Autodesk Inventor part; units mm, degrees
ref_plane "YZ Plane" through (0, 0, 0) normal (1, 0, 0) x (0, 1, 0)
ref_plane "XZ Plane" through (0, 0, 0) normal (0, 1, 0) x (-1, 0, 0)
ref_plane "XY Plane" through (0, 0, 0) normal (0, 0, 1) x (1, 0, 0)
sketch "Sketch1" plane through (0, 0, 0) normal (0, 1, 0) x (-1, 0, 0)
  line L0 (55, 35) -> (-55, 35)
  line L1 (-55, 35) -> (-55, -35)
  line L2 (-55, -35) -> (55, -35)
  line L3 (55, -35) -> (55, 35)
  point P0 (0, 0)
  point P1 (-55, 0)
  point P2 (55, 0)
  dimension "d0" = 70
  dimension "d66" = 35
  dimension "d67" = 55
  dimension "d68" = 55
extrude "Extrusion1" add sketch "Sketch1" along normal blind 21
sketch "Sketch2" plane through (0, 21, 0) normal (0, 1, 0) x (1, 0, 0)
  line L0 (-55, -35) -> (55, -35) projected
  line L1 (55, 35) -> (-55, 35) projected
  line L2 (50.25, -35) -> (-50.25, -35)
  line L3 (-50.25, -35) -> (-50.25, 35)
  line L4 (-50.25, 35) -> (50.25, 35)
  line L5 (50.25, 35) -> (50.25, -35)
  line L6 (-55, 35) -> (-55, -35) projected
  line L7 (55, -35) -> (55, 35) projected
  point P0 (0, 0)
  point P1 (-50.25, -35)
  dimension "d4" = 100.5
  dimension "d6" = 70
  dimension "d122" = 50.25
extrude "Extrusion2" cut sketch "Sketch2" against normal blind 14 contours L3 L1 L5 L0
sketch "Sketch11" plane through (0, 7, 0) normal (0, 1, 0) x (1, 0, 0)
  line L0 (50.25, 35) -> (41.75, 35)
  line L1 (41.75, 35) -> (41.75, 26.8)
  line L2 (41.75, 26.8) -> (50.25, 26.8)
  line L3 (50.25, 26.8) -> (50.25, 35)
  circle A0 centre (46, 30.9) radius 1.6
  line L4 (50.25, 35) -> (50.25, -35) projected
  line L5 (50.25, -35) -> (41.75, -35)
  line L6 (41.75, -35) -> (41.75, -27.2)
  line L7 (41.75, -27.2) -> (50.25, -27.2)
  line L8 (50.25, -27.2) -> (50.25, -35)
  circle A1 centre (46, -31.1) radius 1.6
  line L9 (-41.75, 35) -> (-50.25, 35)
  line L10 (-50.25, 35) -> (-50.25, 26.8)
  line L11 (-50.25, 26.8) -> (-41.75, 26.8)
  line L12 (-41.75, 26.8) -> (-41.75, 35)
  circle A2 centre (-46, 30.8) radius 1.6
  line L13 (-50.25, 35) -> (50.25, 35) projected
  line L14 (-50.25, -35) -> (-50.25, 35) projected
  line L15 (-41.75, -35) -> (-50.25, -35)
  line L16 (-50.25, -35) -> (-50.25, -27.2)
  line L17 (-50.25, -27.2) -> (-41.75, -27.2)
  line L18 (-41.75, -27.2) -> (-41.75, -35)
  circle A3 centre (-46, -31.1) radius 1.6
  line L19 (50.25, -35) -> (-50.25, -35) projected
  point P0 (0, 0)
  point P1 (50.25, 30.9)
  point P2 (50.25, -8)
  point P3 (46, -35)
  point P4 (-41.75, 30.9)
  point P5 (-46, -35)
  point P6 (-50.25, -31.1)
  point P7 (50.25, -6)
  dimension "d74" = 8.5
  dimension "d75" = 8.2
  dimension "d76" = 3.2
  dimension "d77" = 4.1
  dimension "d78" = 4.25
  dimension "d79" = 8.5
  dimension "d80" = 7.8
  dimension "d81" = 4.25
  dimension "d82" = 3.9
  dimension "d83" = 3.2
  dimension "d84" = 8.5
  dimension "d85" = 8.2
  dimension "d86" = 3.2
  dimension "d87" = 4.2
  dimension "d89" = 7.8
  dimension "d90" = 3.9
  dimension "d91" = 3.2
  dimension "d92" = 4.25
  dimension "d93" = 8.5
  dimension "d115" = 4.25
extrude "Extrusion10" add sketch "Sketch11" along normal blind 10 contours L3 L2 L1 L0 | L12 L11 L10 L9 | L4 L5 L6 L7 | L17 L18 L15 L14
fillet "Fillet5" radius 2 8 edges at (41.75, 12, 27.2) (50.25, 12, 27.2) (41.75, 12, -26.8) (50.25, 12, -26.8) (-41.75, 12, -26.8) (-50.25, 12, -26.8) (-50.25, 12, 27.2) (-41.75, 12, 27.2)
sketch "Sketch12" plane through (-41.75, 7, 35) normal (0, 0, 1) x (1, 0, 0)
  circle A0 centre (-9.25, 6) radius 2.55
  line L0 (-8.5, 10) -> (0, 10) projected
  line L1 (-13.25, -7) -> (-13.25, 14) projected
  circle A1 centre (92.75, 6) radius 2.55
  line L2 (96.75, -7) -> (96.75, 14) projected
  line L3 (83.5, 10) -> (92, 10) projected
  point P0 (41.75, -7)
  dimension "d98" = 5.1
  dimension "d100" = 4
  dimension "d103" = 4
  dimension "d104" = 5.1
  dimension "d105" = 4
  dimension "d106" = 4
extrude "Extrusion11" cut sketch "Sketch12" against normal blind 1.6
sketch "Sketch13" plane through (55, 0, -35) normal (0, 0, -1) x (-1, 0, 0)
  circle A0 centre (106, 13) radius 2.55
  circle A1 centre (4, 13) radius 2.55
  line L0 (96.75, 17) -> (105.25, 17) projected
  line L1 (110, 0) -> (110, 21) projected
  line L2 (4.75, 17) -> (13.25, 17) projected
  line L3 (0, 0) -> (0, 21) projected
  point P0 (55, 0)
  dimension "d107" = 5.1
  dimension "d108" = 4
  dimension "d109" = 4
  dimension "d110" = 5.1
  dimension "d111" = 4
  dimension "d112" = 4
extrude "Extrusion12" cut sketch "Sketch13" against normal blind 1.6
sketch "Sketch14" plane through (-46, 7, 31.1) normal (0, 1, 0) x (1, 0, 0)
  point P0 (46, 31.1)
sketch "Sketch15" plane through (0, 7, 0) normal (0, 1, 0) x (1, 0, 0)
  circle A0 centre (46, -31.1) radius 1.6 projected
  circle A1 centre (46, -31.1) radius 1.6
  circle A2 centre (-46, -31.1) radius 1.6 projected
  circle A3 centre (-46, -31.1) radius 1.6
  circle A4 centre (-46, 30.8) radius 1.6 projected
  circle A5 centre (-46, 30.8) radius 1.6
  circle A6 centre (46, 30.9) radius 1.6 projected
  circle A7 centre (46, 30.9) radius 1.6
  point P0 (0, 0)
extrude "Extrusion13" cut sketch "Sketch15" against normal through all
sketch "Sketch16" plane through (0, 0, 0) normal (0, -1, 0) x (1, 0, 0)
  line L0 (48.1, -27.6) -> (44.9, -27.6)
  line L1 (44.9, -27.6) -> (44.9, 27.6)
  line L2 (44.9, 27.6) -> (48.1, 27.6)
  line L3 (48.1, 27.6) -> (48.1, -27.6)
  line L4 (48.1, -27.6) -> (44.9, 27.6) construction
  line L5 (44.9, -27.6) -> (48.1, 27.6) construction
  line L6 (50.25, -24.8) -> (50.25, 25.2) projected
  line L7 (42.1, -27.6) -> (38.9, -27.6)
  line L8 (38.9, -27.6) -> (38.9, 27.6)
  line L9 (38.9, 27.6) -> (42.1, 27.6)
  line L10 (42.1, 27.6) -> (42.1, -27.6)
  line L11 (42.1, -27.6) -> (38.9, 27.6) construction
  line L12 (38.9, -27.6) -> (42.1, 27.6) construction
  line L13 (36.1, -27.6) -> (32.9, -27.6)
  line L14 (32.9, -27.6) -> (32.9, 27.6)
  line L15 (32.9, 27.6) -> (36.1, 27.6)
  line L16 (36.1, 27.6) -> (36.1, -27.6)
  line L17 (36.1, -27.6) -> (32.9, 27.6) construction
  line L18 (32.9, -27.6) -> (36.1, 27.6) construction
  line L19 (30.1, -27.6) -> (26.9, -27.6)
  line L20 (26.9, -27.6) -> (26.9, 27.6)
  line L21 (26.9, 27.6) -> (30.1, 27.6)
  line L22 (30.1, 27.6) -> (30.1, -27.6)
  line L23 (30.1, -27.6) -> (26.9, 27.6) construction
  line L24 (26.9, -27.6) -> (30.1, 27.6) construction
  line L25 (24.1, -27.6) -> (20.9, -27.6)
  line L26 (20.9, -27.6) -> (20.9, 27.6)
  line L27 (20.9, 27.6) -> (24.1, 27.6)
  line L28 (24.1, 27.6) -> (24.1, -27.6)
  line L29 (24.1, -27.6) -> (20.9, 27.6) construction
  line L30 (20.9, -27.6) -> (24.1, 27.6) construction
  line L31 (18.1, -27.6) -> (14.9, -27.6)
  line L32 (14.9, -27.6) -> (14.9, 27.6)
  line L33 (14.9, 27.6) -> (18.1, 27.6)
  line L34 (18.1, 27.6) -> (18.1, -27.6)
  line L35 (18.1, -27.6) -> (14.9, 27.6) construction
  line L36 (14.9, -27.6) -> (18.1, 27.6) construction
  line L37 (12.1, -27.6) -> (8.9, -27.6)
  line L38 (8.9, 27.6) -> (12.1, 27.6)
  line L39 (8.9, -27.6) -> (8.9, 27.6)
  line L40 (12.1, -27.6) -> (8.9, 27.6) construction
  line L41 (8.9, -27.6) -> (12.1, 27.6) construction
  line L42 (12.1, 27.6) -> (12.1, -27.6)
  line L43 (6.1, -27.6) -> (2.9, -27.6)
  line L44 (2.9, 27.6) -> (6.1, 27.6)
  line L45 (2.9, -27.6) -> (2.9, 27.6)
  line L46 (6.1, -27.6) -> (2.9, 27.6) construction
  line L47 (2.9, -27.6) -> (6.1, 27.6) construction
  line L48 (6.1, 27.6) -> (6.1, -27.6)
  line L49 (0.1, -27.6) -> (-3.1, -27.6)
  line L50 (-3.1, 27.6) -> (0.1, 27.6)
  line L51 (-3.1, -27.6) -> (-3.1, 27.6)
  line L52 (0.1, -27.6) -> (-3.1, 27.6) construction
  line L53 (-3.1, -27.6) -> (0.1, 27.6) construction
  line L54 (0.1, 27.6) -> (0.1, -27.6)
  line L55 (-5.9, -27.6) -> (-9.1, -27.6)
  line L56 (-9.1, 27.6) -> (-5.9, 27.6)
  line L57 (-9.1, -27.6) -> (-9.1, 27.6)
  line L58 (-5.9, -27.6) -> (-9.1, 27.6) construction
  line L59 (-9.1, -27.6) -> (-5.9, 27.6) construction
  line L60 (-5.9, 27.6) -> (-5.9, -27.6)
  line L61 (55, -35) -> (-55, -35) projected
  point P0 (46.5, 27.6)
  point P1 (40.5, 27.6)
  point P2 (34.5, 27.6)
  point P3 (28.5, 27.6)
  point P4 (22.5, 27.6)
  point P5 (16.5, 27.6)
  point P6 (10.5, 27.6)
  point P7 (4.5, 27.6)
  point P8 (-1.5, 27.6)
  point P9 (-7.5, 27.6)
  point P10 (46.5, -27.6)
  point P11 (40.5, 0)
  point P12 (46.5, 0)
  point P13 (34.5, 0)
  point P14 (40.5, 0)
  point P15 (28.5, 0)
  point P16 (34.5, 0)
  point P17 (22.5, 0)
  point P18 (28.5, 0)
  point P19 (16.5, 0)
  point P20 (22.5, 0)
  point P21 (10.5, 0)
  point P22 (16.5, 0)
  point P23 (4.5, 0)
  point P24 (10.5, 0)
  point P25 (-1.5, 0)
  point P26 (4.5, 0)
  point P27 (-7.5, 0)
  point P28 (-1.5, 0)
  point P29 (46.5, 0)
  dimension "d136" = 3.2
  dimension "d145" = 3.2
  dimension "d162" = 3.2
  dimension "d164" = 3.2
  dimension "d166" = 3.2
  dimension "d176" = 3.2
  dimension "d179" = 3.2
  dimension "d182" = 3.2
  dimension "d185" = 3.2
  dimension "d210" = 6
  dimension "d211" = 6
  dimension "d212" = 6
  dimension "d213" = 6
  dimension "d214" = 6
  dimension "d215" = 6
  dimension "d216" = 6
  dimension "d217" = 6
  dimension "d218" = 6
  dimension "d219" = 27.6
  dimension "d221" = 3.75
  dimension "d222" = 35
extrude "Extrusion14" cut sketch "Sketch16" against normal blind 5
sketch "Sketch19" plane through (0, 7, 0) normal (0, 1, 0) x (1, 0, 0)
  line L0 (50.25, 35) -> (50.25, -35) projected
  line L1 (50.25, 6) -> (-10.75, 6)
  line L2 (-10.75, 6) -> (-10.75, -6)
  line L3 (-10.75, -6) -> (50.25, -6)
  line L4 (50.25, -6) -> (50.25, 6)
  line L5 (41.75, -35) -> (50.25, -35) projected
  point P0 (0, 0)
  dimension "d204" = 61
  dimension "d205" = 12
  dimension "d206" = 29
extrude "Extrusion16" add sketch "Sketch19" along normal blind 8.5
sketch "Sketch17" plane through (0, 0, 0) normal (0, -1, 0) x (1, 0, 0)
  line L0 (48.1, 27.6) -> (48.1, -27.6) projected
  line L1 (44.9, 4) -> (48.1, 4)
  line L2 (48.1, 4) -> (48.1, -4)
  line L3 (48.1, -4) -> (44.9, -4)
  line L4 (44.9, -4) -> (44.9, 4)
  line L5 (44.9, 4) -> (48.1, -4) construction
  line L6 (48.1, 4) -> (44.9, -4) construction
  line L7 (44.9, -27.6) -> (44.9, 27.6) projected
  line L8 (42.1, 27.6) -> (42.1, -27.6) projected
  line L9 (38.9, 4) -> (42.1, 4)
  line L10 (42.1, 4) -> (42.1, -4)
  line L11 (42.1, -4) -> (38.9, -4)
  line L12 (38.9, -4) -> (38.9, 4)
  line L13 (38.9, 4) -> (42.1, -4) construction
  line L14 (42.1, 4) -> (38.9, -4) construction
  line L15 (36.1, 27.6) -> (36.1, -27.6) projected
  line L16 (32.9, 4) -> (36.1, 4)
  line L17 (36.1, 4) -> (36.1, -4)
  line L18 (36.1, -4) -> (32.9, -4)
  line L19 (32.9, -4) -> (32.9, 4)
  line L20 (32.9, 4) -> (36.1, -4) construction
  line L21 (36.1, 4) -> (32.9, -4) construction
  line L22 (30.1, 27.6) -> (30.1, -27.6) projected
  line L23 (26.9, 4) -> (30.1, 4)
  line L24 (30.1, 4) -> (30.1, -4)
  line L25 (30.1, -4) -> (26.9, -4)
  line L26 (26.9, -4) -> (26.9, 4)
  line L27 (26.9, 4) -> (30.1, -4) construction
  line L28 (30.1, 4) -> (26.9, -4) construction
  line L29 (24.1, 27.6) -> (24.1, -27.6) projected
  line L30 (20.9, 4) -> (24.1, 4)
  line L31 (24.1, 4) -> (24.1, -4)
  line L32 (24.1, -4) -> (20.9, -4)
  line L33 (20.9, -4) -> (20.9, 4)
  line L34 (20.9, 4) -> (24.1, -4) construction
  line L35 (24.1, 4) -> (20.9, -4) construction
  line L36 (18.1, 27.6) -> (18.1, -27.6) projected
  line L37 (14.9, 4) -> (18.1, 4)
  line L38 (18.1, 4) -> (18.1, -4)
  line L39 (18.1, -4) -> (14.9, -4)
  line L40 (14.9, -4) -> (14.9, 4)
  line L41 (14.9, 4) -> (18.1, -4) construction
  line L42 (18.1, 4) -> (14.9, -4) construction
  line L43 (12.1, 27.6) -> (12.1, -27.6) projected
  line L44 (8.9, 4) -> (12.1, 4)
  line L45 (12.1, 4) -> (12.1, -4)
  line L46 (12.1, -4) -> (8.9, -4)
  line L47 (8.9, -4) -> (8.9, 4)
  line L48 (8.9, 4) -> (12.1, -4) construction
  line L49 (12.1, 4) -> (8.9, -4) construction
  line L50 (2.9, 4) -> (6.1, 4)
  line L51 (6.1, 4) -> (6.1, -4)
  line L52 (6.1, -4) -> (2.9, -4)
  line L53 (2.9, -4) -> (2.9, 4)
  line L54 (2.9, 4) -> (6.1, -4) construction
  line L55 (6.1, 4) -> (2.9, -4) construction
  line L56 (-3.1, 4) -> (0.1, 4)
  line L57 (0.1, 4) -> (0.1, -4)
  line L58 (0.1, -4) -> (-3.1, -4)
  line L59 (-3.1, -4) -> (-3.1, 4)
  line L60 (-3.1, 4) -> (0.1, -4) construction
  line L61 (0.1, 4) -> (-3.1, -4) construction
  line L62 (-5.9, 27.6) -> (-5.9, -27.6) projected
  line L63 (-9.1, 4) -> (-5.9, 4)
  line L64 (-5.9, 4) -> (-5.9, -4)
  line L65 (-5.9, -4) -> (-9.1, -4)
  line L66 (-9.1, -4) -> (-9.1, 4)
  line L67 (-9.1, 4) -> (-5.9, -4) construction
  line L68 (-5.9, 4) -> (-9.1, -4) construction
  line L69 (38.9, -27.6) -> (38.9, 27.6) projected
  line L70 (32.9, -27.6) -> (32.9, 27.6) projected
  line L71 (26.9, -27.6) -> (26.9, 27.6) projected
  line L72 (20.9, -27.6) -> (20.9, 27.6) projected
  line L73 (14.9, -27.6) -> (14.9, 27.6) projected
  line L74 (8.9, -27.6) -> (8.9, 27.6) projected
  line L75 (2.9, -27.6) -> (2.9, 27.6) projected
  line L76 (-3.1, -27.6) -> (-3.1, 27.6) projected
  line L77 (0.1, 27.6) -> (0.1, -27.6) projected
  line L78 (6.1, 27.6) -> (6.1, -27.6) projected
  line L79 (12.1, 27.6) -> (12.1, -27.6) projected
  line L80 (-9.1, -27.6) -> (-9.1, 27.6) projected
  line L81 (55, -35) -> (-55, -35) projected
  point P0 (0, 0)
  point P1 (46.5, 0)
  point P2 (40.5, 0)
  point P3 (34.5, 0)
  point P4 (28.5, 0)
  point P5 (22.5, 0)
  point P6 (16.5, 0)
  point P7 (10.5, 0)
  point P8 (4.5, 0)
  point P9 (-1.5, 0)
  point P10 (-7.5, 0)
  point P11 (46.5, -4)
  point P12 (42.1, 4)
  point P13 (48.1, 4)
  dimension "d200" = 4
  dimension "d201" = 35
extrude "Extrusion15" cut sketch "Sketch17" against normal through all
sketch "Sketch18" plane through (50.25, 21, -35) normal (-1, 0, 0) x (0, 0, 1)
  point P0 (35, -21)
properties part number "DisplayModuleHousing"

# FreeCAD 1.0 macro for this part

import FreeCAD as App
import Part
import Sketcher


def edges_at(feature, points):
    """Names of the edges that pass closest to the given points."""
    edges = feature.Shape.Edges
    near = lambda p: min(range(len(edges)), key=lambda i: edges[i].distToShape(Part.Vertex(*p))[0])
    return sorted({f"Edge{near(p) + 1}" for p in points})


def add_polygon(sketch, points):
    """Adds a closed chain of lines whose ends are joined by coincident constraints."""
    first, n = sketch.GeometryCount, len(points)
    for a, b in zip(points, points[1:] + points[:1]):
        sketch.addGeometry(Part.LineSegment(App.Vector(*a, 0), App.Vector(*b, 0)), False)
    for i in range(n):
        sketch.addConstraint(Sketcher.Constraint("Coincident", first + i, 2, first + (i + 1) % n, 1))

doc = App.newDocument("Part")
body = doc.addObject("PartDesign::Body", "Body")

# Sketch on XZ plane
sketch1 = body.newObject("Sketcher::SketchObject", "Sketch")
sketch1.AttachmentSupport = (doc.getObject("XZ_Plane"), [""])
sketch1.MapMode = "FlatFace"
add_polygon(sketch1, [(-55, -35), (-55, 35), (55, 35), (55, -35)])  # lines 0-3
sketch1.addConstraint([
    Sketcher.Constraint("Vertical", 0),
    Sketcher.Constraint("Horizontal", 1),
    Sketcher.Constraint("Vertical", 2),
    Sketcher.Constraint("Horizontal", 3),
    Sketcher.Constraint("Symmetric", 0, 2, 2, 2, -1, 1),
    Sketcher.Constraint("DistanceY", 0, 1, 0, 2, 70.0),
    Sketcher.Constraint("DistanceX", 0, 2, -1, 1, 55.0),
])
pad1 = body.newObject("PartDesign::Pad", "Pad")
pad1.Profile = sketch1
pad1.Length = 21
pad1.Reversed = True

# Sketch on XZ plane
sketch2 = body.newObject("Sketcher::SketchObject", "Sketch001")
sketch2.AttachmentSupport = (doc.getObject("XZ_Plane"), [""])
sketch2.MapMode = "FlatFace"
sketch2.AttachmentOffset = App.Placement(App.Vector(0, 0, -21), App.Rotation())
add_polygon(sketch2, [(-50.25, -35), (-50.25, 35), (50.25, 35), (50.25, -35)])  # lines 0-3
sketch2.addConstraint([
    Sketcher.Constraint("Vertical", 0),
    Sketcher.Constraint("Horizontal", 1),
    Sketcher.Constraint("Vertical", 2),
    Sketcher.Constraint("Horizontal", 3),
    Sketcher.Constraint("Symmetric", 0, 2, 2, 2, -1, 1),
    Sketcher.Constraint("DistanceY", 0, 1, 0, 2, 70.0),
    Sketcher.Constraint("DistanceX", 1, 1, 1, 2, 100.5),
])
pocket1 = body.newObject("PartDesign::Pocket", "Pocket")
pocket1.Profile = sketch2
pocket1.Length = 14
pocket1.Reversed = True

# Sketch on XZ plane
sketch3 = body.newObject("Sketcher::SketchObject", "Sketch002")
sketch3.AttachmentSupport = (doc.getObject("XZ_Plane"), [""])
sketch3.MapMode = "FlatFace"
sketch3.AttachmentOffset = App.Placement(App.Vector(0, 0, -7), App.Rotation())
add_polygon(sketch3, [(50.25, -26.8), (50.25, -35), (41.75, -35), (41.75, -26.8)])  # lines 0-3
sketch3.addGeometry(Part.Circle(App.Vector(46, -30.9, 0), App.Vector(0, 0, 1), 1.6), False)  # 4
add_polygon(sketch3, [(-41.75, -26.8), (-41.75, -35), (-50.25, -35), (-50.25, -26.8)])  # lines 5-8
sketch3.addGeometry(Part.Circle(App.Vector(-46, -30.8, 0), App.Vector(0, 0, 1), 1.6), False)  # 9
add_polygon(sketch3, [(50.25, 35), (50.25, 27.2), (41.75, 27.2), (41.75, 35)])  # lines 10-13
sketch3.addGeometry(Part.Circle(App.Vector(46, 31.1, 0), App.Vector(0, 0, 1), 1.6), False)  # 14
add_polygon(sketch3, [(-41.75, 27.2), (-50.25, 27.2), (-50.25, 35), (-41.75, 35)])  # lines 15-18
sketch3.addGeometry(Part.Circle(App.Vector(-46, 31.1, 0), App.Vector(0, 0, 1), 1.6), False)  # 19
sketch3.addConstraint([
    Sketcher.Constraint("Vertical", 0),
    Sketcher.Constraint("Horizontal", 1),
    Sketcher.Constraint("Vertical", 2),
    Sketcher.Constraint("Horizontal", 3),
    Sketcher.Constraint("Vertical", 5),
    Sketcher.Constraint("Horizontal", 6),
    Sketcher.Constraint("Vertical", 7),
    Sketcher.Constraint("Horizontal", 8),
    Sketcher.Constraint("Vertical", 10),
    Sketcher.Constraint("Horizontal", 11),
    Sketcher.Constraint("Vertical", 12),
    Sketcher.Constraint("Horizontal", 13),
    Sketcher.Constraint("Horizontal", 15),
    Sketcher.Constraint("Vertical", 16),
    Sketcher.Constraint("Horizontal", 17),
    Sketcher.Constraint("Vertical", 18),
    Sketcher.Constraint("Equal", 4, 9),
    Sketcher.Constraint("Equal", 9, 14),
    Sketcher.Constraint("Equal", 14, 19),
    Sketcher.Constraint("Symmetric", 5, 2, 12, 2, -1, 1),
    Sketcher.Constraint("Symmetric", 0, 2, 16, 2, -1, 1),
    Sketcher.Constraint("Symmetric", 14, 3, 19, 3, -2),
    Sketcher.Constraint("Symmetric", 1, 2, 5, 2, -2),
    Sketcher.Constraint("Symmetric", 3, 2, 7, 2, -2),
    Sketcher.Constraint("Symmetric", 10, 2, 15, 2, -2),
    Sketcher.Constraint("Vertical", 4, 3, 14, 3),
    Sketcher.Constraint("Vertical", 9, 3, 19, 3),
    Sketcher.Constraint("Vertical", 8, 2, 17, 2),
    Sketcher.Constraint("Diameter", 4, 3.2),
    Sketcher.Constraint("DistanceX", 1, 2, 1, 1, 8.5),
    Sketcher.Constraint("DistanceY", 0, 2, 0, 1, 8.2),
    Sketcher.Constraint("DistanceY", 10, 2, 10, 1, 7.8),
    Sketcher.Constraint("DistanceY", 0, 2, 4, 3, 4.1),
    Sketcher.Constraint("DistanceY", 0, 2, 9, 3, 4.2),
    Sketcher.Constraint("DistanceY", 10, 2, 14, 3, 3.9),
    Sketcher.Constraint("DistanceX", 4, 3, 0, 2, 4.25),
    Sketcher.Constraint("DistanceX", -1, 1, 4, 3, 46.0),
    Sketcher.Constraint("DistanceY", 0, 2, -1, 1, 35.0),
])
pad2 = body.newObject("PartDesign::Pad", "Pad001")
pad2.Profile = sketch3
pad2.Length = 10
pad2.Reversed = True
doc.recompute()

fillet = body.newObject("PartDesign::Fillet", "Fillet")
fillet.Base = (pad2, edges_at(pad2, [
    (41.75, 12, 27.2),
    (50.25, 12, 27.2),
    (41.75, 12, -26.8),
    (50.25, 12, -26.8),
    (-41.75, 12, -26.8),
    (-50.25, 12, -26.8),
    (-50.25, 12, 27.2),
    (-41.75, 12, 27.2),
]))
fillet.Radius = 2

# Sketch on XY plane
sketch4 = body.newObject("Sketcher::SketchObject", "Sketch003")
sketch4.AttachmentSupport = (doc.getObject("XY_Plane"), [""])
sketch4.MapMode = "FlatFace"
sketch4.AttachmentOffset = App.Placement(App.Vector(0, 0, 35), App.Rotation())
sketch4.addGeometry([
    Part.Circle(App.Vector(-51, 13, 0), App.Vector(0, 0, 1), 2.55),
    Part.Circle(App.Vector(51, 13, 0), App.Vector(0, 0, 1), 2.55),
], False)
sketch4.addConstraint([
    Sketcher.Constraint("Equal", 0, 1),
    Sketcher.Constraint("Symmetric", 0, 3, 1, 3, -2),
    Sketcher.Constraint("Diameter", 0, 5.1),
    Sketcher.Constraint("DistanceX", 0, 3, -1, 1, 51.0),
    Sketcher.Constraint("DistanceY", -1, 1, 0, 3, 13.0),
])
pocket2 = body.newObject("PartDesign::Pocket", "Pocket001")
pocket2.Profile = sketch4
pocket2.Length = 1.6

# Sketch on XY plane
sketch5 = body.newObject("Sketcher::SketchObject", "Sketch004")
sketch5.AttachmentSupport = (doc.getObject("XY_Plane"), [""])
sketch5.MapMode = "FlatFace"
sketch5.AttachmentOffset = App.Placement(App.Vector(0, 0, -35), App.Rotation())
sketch5.addGeometry([
    Part.Circle(App.Vector(-51, 13, 0), App.Vector(0, 0, 1), 2.55),
    Part.Circle(App.Vector(51, 13, 0), App.Vector(0, 0, 1), 2.55),
], False)
sketch5.addConstraint([
    Sketcher.Constraint("Equal", 0, 1),
    Sketcher.Constraint("Symmetric", 0, 3, 1, 3, -2),
    Sketcher.Constraint("Diameter", 0, 5.1),
    Sketcher.Constraint("DistanceX", 0, 3, -1, 1, 51.0),
    Sketcher.Constraint("DistanceY", -1, 1, 0, 3, 13.0),
])
pocket3 = body.newObject("PartDesign::Pocket", "Pocket002")
pocket3.Profile = sketch5
pocket3.Length = 1.6
pocket3.Reversed = True

# Sketch on XZ plane
sketch6 = body.newObject("Sketcher::SketchObject", "Sketch005")
sketch6.AttachmentSupport = (doc.getObject("XZ_Plane"), [""])
sketch6.MapMode = "FlatFace"
sketch6.AttachmentOffset = App.Placement(App.Vector(0, 0, -7), App.Rotation())
sketch6.addGeometry([
    Part.Circle(App.Vector(46, 31.1, 0), App.Vector(0, 0, 1), 1.6),
    Part.Circle(App.Vector(-46, 31.1, 0), App.Vector(0, 0, 1), 1.6),
    Part.Circle(App.Vector(-46, -30.8, 0), App.Vector(0, 0, 1), 1.6),
    Part.Circle(App.Vector(46, -30.9, 0), App.Vector(0, 0, 1), 1.6),
], False)
sketch6.addConstraint([
    Sketcher.Constraint("Equal", 0, 1),
    Sketcher.Constraint("Equal", 1, 2),
    Sketcher.Constraint("Equal", 2, 3),
    Sketcher.Constraint("Symmetric", 0, 3, 1, 3, -2),
    Sketcher.Constraint("Vertical", 1, 3, 2, 3),
    Sketcher.Constraint("Vertical", 0, 3, 3, 3),
    Sketcher.Constraint("Diameter", 0, 3.2),
    Sketcher.Constraint("DistanceX", -1, 1, 0, 3, 46.0),
    Sketcher.Constraint("DistanceY", 3, 3, 0, 3, 62.0),
    Sketcher.Constraint("DistanceY", -1, 1, 0, 3, 31.1),
    Sketcher.Constraint("DistanceY", 2, 3, -1, 1, 30.8),
])
pocket4 = body.newObject("PartDesign::Pocket", "Pocket003")
pocket4.Profile = sketch6
pocket4.Type = "ThroughAll"
pocket4.Reversed = True

# Sketch on XZ plane
sketch7 = body.newObject("Sketcher::SketchObject", "Sketch006")
sketch7.AttachmentSupport = (doc.getObject("XZ_Plane"), [""])
sketch7.MapMode = "FlatFace"
add_polygon(sketch7, [(44.9, -27.6), (48.1, -27.6), (48.1, 27.6), (44.9, 27.6)])  # lines 0-3
add_polygon(sketch7, [(38.9, -27.6), (42.1, -27.6), (42.1, 27.6), (38.9, 27.6)])  # lines 4-7
add_polygon(sketch7, [(32.9, -27.6), (36.1, -27.6), (36.1, 27.6), (32.9, 27.6)])  # lines 8-11
add_polygon(sketch7, [(26.9, -27.6), (30.1, -27.6), (30.1, 27.6), (26.9, 27.6)])  # lines 12-15
add_polygon(sketch7, [(20.9, -27.6), (24.1, -27.6), (24.1, 27.6), (20.9, 27.6)])  # lines 16-19
add_polygon(sketch7, [(14.9, -27.6), (18.1, -27.6), (18.1, 27.6), (14.9, 27.6)])  # lines 20-23
add_polygon(sketch7, [(8.9, -27.6), (12.1, -27.6), (12.1, 27.6), (8.9, 27.6)])  # lines 24-27
add_polygon(sketch7, [(2.9, -27.6), (6.1, -27.6), (6.1, 27.6), (2.9, 27.6)])  # lines 28-31
add_polygon(sketch7, [(-3.1, -27.6), (0.1, -27.6), (0.1, 27.6), (-3.1, 27.6)])  # lines 32-35
add_polygon(sketch7, [(-9.1, -27.6), (-5.9, -27.6), (-5.9, 27.6), (-9.1, 27.6)])  # lines 36-39
sketch7.addConstraint([
    Sketcher.Constraint("Horizontal", 0),
    Sketcher.Constraint("Vertical", 1),
    Sketcher.Constraint("Horizontal", 2),
    Sketcher.Constraint("Vertical", 3),
    Sketcher.Constraint("Horizontal", 4),
    Sketcher.Constraint("Vertical", 5),
    Sketcher.Constraint("Horizontal", 6),
    Sketcher.Constraint("Vertical", 7),
    Sketcher.Constraint("Horizontal", 8),
    Sketcher.Constraint("Vertical", 9),
    Sketcher.Constraint("Horizontal", 10),
    Sketcher.Constraint("Vertical", 11),
    Sketcher.Constraint("Horizontal", 12),
    Sketcher.Constraint("Vertical", 13),
    Sketcher.Constraint("Horizontal", 14),
    Sketcher.Constraint("Vertical", 15),
    Sketcher.Constraint("Horizontal", 16),
    Sketcher.Constraint("Vertical", 17),
    Sketcher.Constraint("Horizontal", 18),
    Sketcher.Constraint("Vertical", 19),
    Sketcher.Constraint("Horizontal", 20),
    Sketcher.Constraint("Vertical", 21),
    Sketcher.Constraint("Horizontal", 22),
    Sketcher.Constraint("Vertical", 23),
    Sketcher.Constraint("Horizontal", 24),
    Sketcher.Constraint("Vertical", 25),
    Sketcher.Constraint("Horizontal", 26),
    Sketcher.Constraint("Vertical", 27),
    Sketcher.Constraint("Horizontal", 28),
    Sketcher.Constraint("Vertical", 29),
    Sketcher.Constraint("Horizontal", 30),
    Sketcher.Constraint("Vertical", 31),
    Sketcher.Constraint("Horizontal", 32),
    Sketcher.Constraint("Vertical", 33),
    Sketcher.Constraint("Horizontal", 34),
    Sketcher.Constraint("Vertical", 35),
    Sketcher.Constraint("Horizontal", 36),
    Sketcher.Constraint("Vertical", 37),
    Sketcher.Constraint("Horizontal", 38),
    Sketcher.Constraint("Vertical", 39),
    Sketcher.Constraint("Horizontal", 3, 2, 4, 2),
    Sketcher.Constraint("Horizontal", 2, 2, 5, 2),
    Sketcher.Constraint("Horizontal", 7, 2, 8, 2),
    Sketcher.Constraint("Horizontal", 6, 2, 9, 2),
    Sketcher.Constraint("Horizontal", 11, 2, 12, 2),
    Sketcher.Constraint("Horizontal", 10, 2, 13, 2),
    Sketcher.Constraint("Horizontal", 15, 2, 16, 2),
    Sketcher.Constraint("Horizontal", 14, 2, 17, 2),
    Sketcher.Constraint("Horizontal", 19, 2, 20, 2),
    Sketcher.Constraint("Horizontal", 18, 2, 21, 2),
    Sketcher.Constraint("Horizontal", 23, 2, 24, 2),
    Sketcher.Constraint("Horizontal", 22, 2, 25, 2),
    Sketcher.Constraint("Horizontal", 27, 2, 28, 2),
    Sketcher.Constraint("Horizontal", 26, 2, 29, 2),
    Sketcher.Constraint("Horizontal", 31, 2, 32, 2),
    Sketcher.Constraint("Horizontal", 30, 2, 33, 2),
    Sketcher.Constraint("Horizontal", 35, 2, 36, 2),
    Sketcher.Constraint("Horizontal", 34, 2, 37, 2),
    Sketcher.Constraint("Equal", 2, 4),
    Sketcher.Constraint("Equal", 6, 8),
    Sketcher.Constraint("Equal", 10, 12),
    Sketcher.Constraint("Equal", 14, 16),
    Sketcher.Constraint("Equal", 18, 20),
    Sketcher.Constraint("Equal", 22, 24),
    Sketcher.Constraint("Equal", 26, 28),
    Sketcher.Constraint("Equal", 30, 32),
    Sketcher.Constraint("Equal", 34, 36),
    Sketcher.Constraint("DistanceX", 0, 1, 0, 2, 3.2),
    Sketcher.Constraint("DistanceX", 4, 2, 0, 2, 6.0),
    Sketcher.Constraint("DistanceX", 8, 2, 4, 2, 6.0),
    Sketcher.Constraint("DistanceX", 12, 2, 8, 2, 6.0),
    Sketcher.Constraint("DistanceX", 16, 2, 12, 2, 6.0),
    Sketcher.Constraint("DistanceX", 20, 2, 16, 2, 6.0),
    Sketcher.Constraint("DistanceX", 24, 2, 20, 2, 6.0),
    Sketcher.Constraint("DistanceX", 28, 2, 24, 2, 6.0),
    Sketcher.Constraint("DistanceX", 32, 2, 28, 2, 6.0),
    Sketcher.Constraint("DistanceX", 36, 2, 32, 2, 6.0),
    Sketcher.Constraint("DistanceY", 0, 2, -1, 1, 27.6),
    Sketcher.Constraint("DistanceY", -1, 1, 1, 2, 27.6),
    Sketcher.Constraint("DistanceX", -1, 1, 0, 2, 48.1),
])
pocket5 = body.newObject("PartDesign::Pocket", "Pocket004")
pocket5.Profile = sketch7
pocket5.Length = 5

# Sketch on XZ plane
sketch8 = body.newObject("Sketcher::SketchObject", "Sketch007")
sketch8.AttachmentSupport = (doc.getObject("XZ_Plane"), [""])
sketch8.MapMode = "FlatFace"
sketch8.AttachmentOffset = App.Placement(App.Vector(0, 0, -7), App.Rotation())
add_polygon(sketch8, [(50.25, 6), (50.25, -6), (-10.75, -6), (-10.75, 6)])  # lines 0-3
sketch8.addConstraint([
    Sketcher.Constraint("Vertical", 0),
    Sketcher.Constraint("Horizontal", 1),
    Sketcher.Constraint("Vertical", 2),
    Sketcher.Constraint("Horizontal", 3),
    Sketcher.Constraint("DistanceX", 1, 2, 1, 1, 61.0),
    Sketcher.Constraint("DistanceY", 0, 2, 0, 1, 12.0),
    Sketcher.Constraint("DistanceY", 0, 2, -1, 1, 6.0),
    Sketcher.Constraint("DistanceX", -1, 1, 0, 2, 50.25),
])
pad3 = body.newObject("PartDesign::Pad", "Pad002")
pad3.Profile = sketch8
pad3.Length = 8.5
pad3.Reversed = True

# Sketch on XZ plane
sketch9 = body.newObject("Sketcher::SketchObject", "Sketch008")
sketch9.AttachmentSupport = (doc.getObject("XZ_Plane"), [""])
sketch9.MapMode = "FlatFace"
add_polygon(sketch9, [(48.1, -4), (48.1, 4), (44.9, 4), (44.9, -4)])  # lines 0-3
add_polygon(sketch9, [(42.1, -4), (42.1, 4), (38.9, 4), (38.9, -4)])  # lines 4-7
add_polygon(sketch9, [(36.1, -4), (36.1, 4), (32.9, 4), (32.9, -4)])  # lines 8-11
add_polygon(sketch9, [(30.1, -4), (30.1, 4), (26.9, 4), (26.9, -4)])  # lines 12-15
add_polygon(sketch9, [(24.1, -4), (24.1, 4), (20.9, 4), (20.9, -4)])  # lines 16-19
add_polygon(sketch9, [(18.1, -4), (18.1, 4), (14.9, 4), (14.9, -4)])  # lines 20-23
add_polygon(sketch9, [(12.1, -4), (12.1, 4), (8.9, 4), (8.9, -4)])  # lines 24-27
add_polygon(sketch9, [(6.1, 4), (2.9, 4), (2.9, -4), (6.1, -4)])  # lines 28-31
add_polygon(sketch9, [(0.1, 4), (-3.1, 4), (-3.1, -4), (0.1, -4)])  # lines 32-35
add_polygon(sketch9, [(-5.9, -4), (-5.9, 4), (-9.1, 4), (-9.1, -4)])  # lines 36-39
sketch9.addConstraint([
    Sketcher.Constraint("Vertical", 0),
    Sketcher.Constraint("Horizontal", 1),
    Sketcher.Constraint("Vertical", 2),
    Sketcher.Constraint("Horizontal", 3),
    Sketcher.Constraint("Vertical", 4),
    Sketcher.Constraint("Horizontal", 5),
    Sketcher.Constraint("Vertical", 6),
    Sketcher.Constraint("Horizontal", 7),
    Sketcher.Constraint("Vertical", 8),
    Sketcher.Constraint("Horizontal", 9),
    Sketcher.Constraint("Vertical", 10),
    Sketcher.Constraint("Horizontal", 11),
    Sketcher.Constraint("Vertical", 12),
    Sketcher.Constraint("Horizontal", 13),
    Sketcher.Constraint("Vertical", 14),
    Sketcher.Constraint("Horizontal", 15),
    Sketcher.Constraint("Vertical", 16),
    Sketcher.Constraint("Horizontal", 17),
    Sketcher.Constraint("Vertical", 18),
    Sketcher.Constraint("Horizontal", 19),
    Sketcher.Constraint("Vertical", 20),
    Sketcher.Constraint("Horizontal", 21),
    Sketcher.Constraint("Vertical", 22),
    Sketcher.Constraint("Horizontal", 23),
    Sketcher.Constraint("Vertical", 24),
    Sketcher.Constraint("Horizontal", 25),
    Sketcher.Constraint("Vertical", 26),
    Sketcher.Constraint("Horizontal", 27),
    Sketcher.Constraint("Horizontal", 28),
    Sketcher.Constraint("Vertical", 29),
    Sketcher.Constraint("Horizontal", 30),
    Sketcher.Constraint("Vertical", 31),
    Sketcher.Constraint("Horizontal", 32),
    Sketcher.Constraint("Vertical", 33),
    Sketcher.Constraint("Horizontal", 34),
    Sketcher.Constraint("Vertical", 35),
    Sketcher.Constraint("Vertical", 36),
    Sketcher.Constraint("Horizontal", 37),
    Sketcher.Constraint("Vertical", 38),
    Sketcher.Constraint("Horizontal", 39),
    Sketcher.Constraint("Horizontal", 1, 2, 4, 2),
    Sketcher.Constraint("Horizontal", 3, 2, 6, 2),
    Sketcher.Constraint("Horizontal", 5, 2, 8, 2),
    Sketcher.Constraint("Horizontal", 7, 2, 10, 2),
    Sketcher.Constraint("Horizontal", 9, 2, 12, 2),
    Sketcher.Constraint("Horizontal", 11, 2, 14, 2),
    Sketcher.Constraint("Horizontal", 13, 2, 16, 2),
    Sketcher.Constraint("Horizontal", 15, 2, 18, 2),
    Sketcher.Constraint("Horizontal", 17, 2, 20, 2),
    Sketcher.Constraint("Horizontal", 19, 2, 22, 2),
    Sketcher.Constraint("Horizontal", 21, 2, 24, 2),
    Sketcher.Constraint("Horizontal", 23, 2, 26, 2),
    Sketcher.Constraint("Horizontal", 25, 2, 28, 2),
    Sketcher.Constraint("Horizontal", 27, 2, 29, 2),
    Sketcher.Constraint("Horizontal", 31, 2, 32, 2),
    Sketcher.Constraint("Horizontal", 30, 2, 33, 2),
    Sketcher.Constraint("Horizontal", 35, 2, 36, 2),
    Sketcher.Constraint("Horizontal", 34, 2, 38, 2),
    Sketcher.Constraint("Equal", 3, 5),
    Sketcher.Constraint("Equal", 7, 9),
    Sketcher.Constraint("Equal", 11, 13),
    Sketcher.Constraint("Equal", 15, 17),
    Sketcher.Constraint("Equal", 19, 21),
    Sketcher.Constraint("Equal", 23, 25),
    Sketcher.Constraint("Equal", 27, 28),
    Sketcher.Constraint("Equal", 30, 32),
    Sketcher.Constraint("Equal", 34, 37),
    Sketcher.Constraint("DistanceY", -1, 1, 0, 2, 4.0),
    Sketcher.Constraint("DistanceY", 2, 2, -1, 1, 4.0),
    Sketcher.Constraint("DistanceX", 1, 2, 1, 1, 3.2),
    Sketcher.Constraint("DistanceX", 4, 2, 0, 2, 6.0),
    Sketcher.Constraint("DistanceX", 8, 2, 4, 2, 6.0),
    Sketcher.Constraint("DistanceX", 12, 2, 8, 2, 6.0),
    Sketcher.Constraint("DistanceX", 16, 2, 12, 2, 6.0),
    Sketcher.Constraint("DistanceX", 20, 2, 16, 2, 6.0),
    Sketcher.Constraint("DistanceX", 24, 2, 20, 2, 6.0),
    Sketcher.Constraint("DistanceX", 28, 2, 25, 2, 6.0),
    Sketcher.Constraint("DistanceX", 32, 2, 28, 2, 6.0),
    Sketcher.Constraint("DistanceX", 36, 2, 35, 2, 6.0),
    Sketcher.Constraint("DistanceX", -1, 1, 0, 2, 48.1),
])
pocket6 = body.newObject("PartDesign::Pocket", "Pocket005")
pocket6.Profile = sketch9
pocket6.Type = "ThroughAll"

doc.recompute()
